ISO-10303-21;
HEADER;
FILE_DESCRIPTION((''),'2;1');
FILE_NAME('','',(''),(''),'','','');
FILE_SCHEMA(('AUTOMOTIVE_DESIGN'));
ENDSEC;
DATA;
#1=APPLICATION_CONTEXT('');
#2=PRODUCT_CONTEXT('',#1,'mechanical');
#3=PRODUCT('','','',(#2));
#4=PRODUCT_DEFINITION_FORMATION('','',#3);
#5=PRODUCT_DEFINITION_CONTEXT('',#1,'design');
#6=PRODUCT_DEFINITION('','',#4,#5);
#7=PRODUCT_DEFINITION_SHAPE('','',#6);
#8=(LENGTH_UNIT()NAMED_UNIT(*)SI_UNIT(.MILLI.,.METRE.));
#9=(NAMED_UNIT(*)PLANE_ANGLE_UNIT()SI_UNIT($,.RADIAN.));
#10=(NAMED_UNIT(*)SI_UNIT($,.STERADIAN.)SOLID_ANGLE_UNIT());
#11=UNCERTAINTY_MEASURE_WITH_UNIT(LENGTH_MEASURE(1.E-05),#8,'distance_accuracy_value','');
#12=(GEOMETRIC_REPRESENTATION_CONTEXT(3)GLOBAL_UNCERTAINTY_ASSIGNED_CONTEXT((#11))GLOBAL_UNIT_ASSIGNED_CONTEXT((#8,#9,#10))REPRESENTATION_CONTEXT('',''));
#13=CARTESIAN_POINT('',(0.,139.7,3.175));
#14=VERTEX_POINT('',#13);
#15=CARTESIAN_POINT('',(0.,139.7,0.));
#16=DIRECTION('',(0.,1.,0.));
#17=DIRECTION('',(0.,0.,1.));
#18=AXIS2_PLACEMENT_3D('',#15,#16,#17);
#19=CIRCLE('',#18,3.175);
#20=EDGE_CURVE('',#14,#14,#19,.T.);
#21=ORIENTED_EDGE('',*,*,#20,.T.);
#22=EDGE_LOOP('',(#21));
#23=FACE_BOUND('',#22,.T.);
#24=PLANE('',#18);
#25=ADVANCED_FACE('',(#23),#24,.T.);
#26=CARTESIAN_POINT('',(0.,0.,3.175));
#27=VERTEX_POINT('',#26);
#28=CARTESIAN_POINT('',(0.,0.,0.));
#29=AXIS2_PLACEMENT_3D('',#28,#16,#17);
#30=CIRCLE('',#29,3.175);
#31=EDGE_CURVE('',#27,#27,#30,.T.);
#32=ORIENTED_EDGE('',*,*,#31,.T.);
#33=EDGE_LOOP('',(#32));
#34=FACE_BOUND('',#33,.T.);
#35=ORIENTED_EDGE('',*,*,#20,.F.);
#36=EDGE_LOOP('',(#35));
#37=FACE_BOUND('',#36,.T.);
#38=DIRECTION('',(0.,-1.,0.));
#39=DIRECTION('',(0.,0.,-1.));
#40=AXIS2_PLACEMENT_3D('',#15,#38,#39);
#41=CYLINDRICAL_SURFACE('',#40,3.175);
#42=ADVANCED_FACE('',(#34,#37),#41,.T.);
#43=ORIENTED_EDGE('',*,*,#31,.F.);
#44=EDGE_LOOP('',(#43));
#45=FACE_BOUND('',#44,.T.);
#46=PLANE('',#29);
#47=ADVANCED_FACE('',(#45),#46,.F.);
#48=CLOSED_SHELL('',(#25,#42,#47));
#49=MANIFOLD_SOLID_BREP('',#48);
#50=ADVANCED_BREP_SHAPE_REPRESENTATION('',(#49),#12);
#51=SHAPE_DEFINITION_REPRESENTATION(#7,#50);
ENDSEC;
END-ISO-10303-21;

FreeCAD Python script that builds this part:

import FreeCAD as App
import Part
import Sketcher
Q = App.Units.Quantity

doc = App.newDocument("Part")
body = doc.addObject("PartDesign::Body", "Body")

# Sketch on XZ plane
sketch1 = body.newObject("Sketcher::SketchObject", "Sketch")
sketch1.AttachmentSupport = (doc.getObject("XZ_Plane"), [""])
sketch1.MapMode = "FlatFace"
sketch1.addGeometry(Part.Circle(App.Vector(0, 0, 0), App.Vector(0, 0, 1), 3.175), False)
sketch1.addConstraint([
    Sketcher.Constraint("Coincident", 0, 3, -1, 1),
    Sketcher.Constraint("Diameter", 0, Q("0.25 in")),
])
pad1 = body.newObject("PartDesign::Pad", "Pad")
pad1.Profile = sketch1
pad1.Length = Q("5.5 in")
pad1.Reversed = True

doc.recompute()
